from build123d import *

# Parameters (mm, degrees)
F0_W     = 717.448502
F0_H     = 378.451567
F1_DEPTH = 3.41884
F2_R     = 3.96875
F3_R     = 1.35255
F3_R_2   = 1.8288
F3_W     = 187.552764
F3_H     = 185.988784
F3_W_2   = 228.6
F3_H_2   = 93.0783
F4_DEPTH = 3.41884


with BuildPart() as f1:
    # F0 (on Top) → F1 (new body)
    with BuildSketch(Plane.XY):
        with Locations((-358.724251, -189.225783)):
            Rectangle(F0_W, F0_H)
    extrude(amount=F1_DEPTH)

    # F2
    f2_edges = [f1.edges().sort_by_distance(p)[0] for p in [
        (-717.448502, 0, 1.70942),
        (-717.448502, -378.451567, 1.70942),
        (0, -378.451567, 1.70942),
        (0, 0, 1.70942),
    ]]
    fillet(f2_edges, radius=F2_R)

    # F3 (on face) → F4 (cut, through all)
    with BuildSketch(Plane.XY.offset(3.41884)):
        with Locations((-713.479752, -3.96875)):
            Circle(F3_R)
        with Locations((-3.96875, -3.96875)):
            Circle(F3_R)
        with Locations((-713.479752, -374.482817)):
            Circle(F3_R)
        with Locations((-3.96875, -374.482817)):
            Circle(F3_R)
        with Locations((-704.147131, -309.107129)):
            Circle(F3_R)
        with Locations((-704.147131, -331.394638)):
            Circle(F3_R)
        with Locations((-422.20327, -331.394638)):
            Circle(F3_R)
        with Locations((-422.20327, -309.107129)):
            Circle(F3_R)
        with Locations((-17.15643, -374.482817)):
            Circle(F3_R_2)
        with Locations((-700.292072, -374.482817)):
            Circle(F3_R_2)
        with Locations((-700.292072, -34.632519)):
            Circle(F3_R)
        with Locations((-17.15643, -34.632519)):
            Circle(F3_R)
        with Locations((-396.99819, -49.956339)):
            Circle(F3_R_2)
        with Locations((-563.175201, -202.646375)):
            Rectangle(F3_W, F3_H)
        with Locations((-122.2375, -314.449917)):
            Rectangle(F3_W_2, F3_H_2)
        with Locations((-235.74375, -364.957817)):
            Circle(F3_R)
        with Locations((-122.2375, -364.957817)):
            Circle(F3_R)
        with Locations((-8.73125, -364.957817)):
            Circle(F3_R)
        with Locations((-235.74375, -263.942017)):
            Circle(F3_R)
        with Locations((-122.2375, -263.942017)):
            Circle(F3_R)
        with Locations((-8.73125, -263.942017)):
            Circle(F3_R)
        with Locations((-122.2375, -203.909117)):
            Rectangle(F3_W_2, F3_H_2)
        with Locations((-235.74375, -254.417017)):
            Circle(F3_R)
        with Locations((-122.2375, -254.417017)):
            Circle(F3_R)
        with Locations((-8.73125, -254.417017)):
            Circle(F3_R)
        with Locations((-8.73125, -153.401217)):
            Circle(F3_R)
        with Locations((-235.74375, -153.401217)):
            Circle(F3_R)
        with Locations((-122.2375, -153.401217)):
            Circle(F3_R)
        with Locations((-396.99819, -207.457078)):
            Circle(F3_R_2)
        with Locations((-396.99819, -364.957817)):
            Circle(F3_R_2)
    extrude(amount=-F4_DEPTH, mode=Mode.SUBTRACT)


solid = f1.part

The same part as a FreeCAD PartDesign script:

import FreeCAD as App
import Part
import Sketcher

V = App.Vector
Q = App.Units.Quantity


def edges_at(feature, points):
    """Names of the edges that pass closest to the given points."""
    edges = feature.Shape.Edges
    near = lambda p: min(range(len(edges)), key=lambda i: edges[i].distToShape(Part.Vertex(*p))[0])
    return sorted({f"Edge{near(p) + 1}" for p in points})

doc = App.newDocument("Part")
body = doc.addObject("PartDesign::Body", "Body")

sketch1 = doc.addObject("Sketcher::SketchObject", "Sketch")
body.addObject(sketch1)
sketch1.AttachmentSupport = (doc.XY_Plane, [""])
sketch1.MapMode = "FlatFace"
sketch1.addGeometry([
    Part.LineSegment(V(-717.448502, 0, 0), V(-717.448502, -378.451567, 0)),
    Part.LineSegment(V(-717.448502, -378.451567, 0), V(0, -378.451567, 0)),
    Part.LineSegment(V(0, -378.451567, 0), V(0, 0, 0)),
    Part.LineSegment(V(0, 0, 0), V(-717.448502, 0, 0)),
], False)
sketch1.addConstraint([
    Sketcher.Constraint("Coincident", 0, 2, 1, 1),
    Sketcher.Constraint("Coincident", 1, 2, 2, 1),
    Sketcher.Constraint("Coincident", 2, 2, 3, 1),
    Sketcher.Constraint("Coincident", 3, 2, 0, 1),
    Sketcher.Constraint("Vertical", 0),
    Sketcher.Constraint("Horizontal", 1),
    Sketcher.Constraint("Vertical", 2),
    Sketcher.Constraint("Horizontal", 3),
    Sketcher.Constraint("Coincident", 2, 2, -1, 1),
    Sketcher.Constraint("DistanceX", 1, 1, 1, 2, 717.448502),
    Sketcher.Constraint("DistanceY", 0, 2, 0, 1, 378.451567),
])
pad1 = doc.addObject("PartDesign::Pad", "Pad")
body.addObject(pad1)
pad1.Profile = sketch1
pad1.Length = Q("0.1346 in")
doc.recompute()

fillet = doc.addObject("PartDesign::Fillet", "Fillet")
body.addObject(fillet)
fillet.Base = (pad1, edges_at(pad1, [
    (-717.449, 0, 1.709),
    (-717.449, -378.452, 1.709),
    (0, -378.452, 1.709),
    (0, 0, 1.709),
]))
fillet.Radius = Q("0.15625 in")

sketch2 = doc.addObject("Sketcher::SketchObject", "Sketch001")
body.addObject(sketch2)
sketch2.AttachmentSupport = (doc.XY_Plane, [""])
sketch2.MapMode = "FlatFace"
sketch2.AttachmentOffset = App.Placement(V(0, 0, 0.1346 * 25.4), App.Rotation())
sketch2.addGeometry([
    Part.Circle(V(-713.479752, -3.96875, 0), V(0, 0, 1), 1.35255),
    Part.Circle(V(-3.96875, -3.96875, 0), V(0, 0, 1), 1.35255),
    Part.Circle(V(-713.479752, -374.482817, 0), V(0, 0, 1), 1.35255),
    Part.Circle(V(-3.96875, -374.482817, 0), V(0, 0, 1), 1.35255),
    Part.Circle(V(-704.147131, -309.107129, 0), V(0, 0, 1), 1.35255),
    Part.Circle(V(-704.147131, -331.394638, 0), V(0, 0, 1), 1.35255),
    Part.Circle(V(-422.20327, -331.394638, 0), V(0, 0, 1), 1.35255),
    Part.Circle(V(-422.20327, -309.107129, 0), V(0, 0, 1), 1.35255),
    Part.Circle(V(-17.15643, -374.482817, 0), V(0, 0, 1), 1.8288),
    Part.Circle(V(-700.292072, -374.482817, 0), V(0, 0, 1), 1.8288),
    Part.Circle(V(-700.292072, -34.632519, 0), V(0, 0, 1), 1.35255),
    Part.Circle(V(-17.15643, -34.632519, 0), V(0, 0, 1), 1.35255),
    Part.Circle(V(-396.99819, -49.956339, 0), V(0, 0, 1), 1.8288),
    Part.LineSegment(V(-656.951583, -109.651983, 0), V(-656.951583, -295.640767, 0)),
    Part.LineSegment(V(-656.951583, -295.640767, 0), V(-469.398819, -295.640767, 0)),
    Part.LineSegment(V(-469.398819, -295.640767, 0), V(-469.398819, -109.651983, 0)),
    Part.LineSegment(V(-469.398819, -109.651983, 0), V(-656.951583, -109.651983, 0)),
    Part.LineSegment(V(-236.5375, -267.910767, 0), V(-236.5375, -360.989067, 0)),
    Part.LineSegment(V(-236.5375, -360.989067, 0), V(-7.9375, -360.989067, 0)),
    Part.LineSegment(V(-7.9375, -360.989067, 0), V(-7.9375, -267.910767, 0)),
    Part.LineSegment(V(-7.9375, -267.910767, 0), V(-236.5375, -267.910767, 0)),
    Part.Circle(V(-235.74375, -364.957817, 0), V(0, 0, 1), 1.35255),
    Part.Circle(V(-122.2375, -364.957817, 0), V(0, 0, 1), 1.35255),
    Part.Circle(V(-8.73125, -364.957817, 0), V(0, 0, 1), 1.35255),
    Part.Circle(V(-235.74375, -263.942017, 0), V(0, 0, 1), 1.35255),
    Part.Circle(V(-122.2375, -263.942017, 0), V(0, 0, 1), 1.35255),
    Part.Circle(V(-8.73125, -263.942017, 0), V(0, 0, 1), 1.35255),
    Part.LineSegment(V(-236.5375, -157.369967, 0), V(-236.5375, -250.448267, 0)),
    Part.LineSegment(V(-236.5375, -250.448267, 0), V(-7.9375, -250.448267, 0)),
    Part.LineSegment(V(-7.9375, -250.448267, 0), V(-7.9375, -157.369967, 0)),
    Part.LineSegment(V(-7.9375, -157.369967, 0), V(-236.5375, -157.369967, 0)),
    Part.Circle(V(-235.74375, -254.417017, 0), V(0, 0, 1), 1.35255),
    Part.Circle(V(-122.2375, -254.417017, 0), V(0, 0, 1), 1.35255),
    Part.Circle(V(-8.73125, -254.417017, 0), V(0, 0, 1), 1.35255),
    Part.Circle(V(-8.73125, -153.401217, 0), V(0, 0, 1), 1.35255),
    Part.Circle(V(-235.74375, -153.401217, 0), V(0, 0, 1), 1.35255),
    Part.Circle(V(-122.2375, -153.401217, 0), V(0, 0, 1), 1.35255),
    Part.Circle(V(-396.99819, -207.457078, 0), V(0, 0, 1), 1.8288),
    Part.Circle(V(-396.99819, -364.957817, 0), V(0, 0, 1), 1.8288),
], False)
sketch2.addConstraint([
    Sketcher.Constraint("Coincident", 13, 2, 14, 1),
    Sketcher.Constraint("Coincident", 14, 2, 15, 1),
    Sketcher.Constraint("Coincident", 15, 2, 16, 1),
    Sketcher.Constraint("Coincident", 16, 2, 13, 1),
    Sketcher.Constraint("Coincident", 17, 2, 18, 1),
    Sketcher.Constraint("Coincident", 18, 2, 19, 1),
    Sketcher.Constraint("Coincident", 19, 2, 20, 1),
    Sketcher.Constraint("Coincident", 20, 2, 17, 1),
    Sketcher.Constraint("Coincident", 27, 2, 28, 1),
    Sketcher.Constraint("Coincident", 28, 2, 29, 1),
    Sketcher.Constraint("Coincident", 29, 2, 30, 1),
    Sketcher.Constraint("Coincident", 30, 2, 27, 1),
    Sketcher.Constraint("Vertical", 13),
    Sketcher.Constraint("Horizontal", 14),
    Sketcher.Constraint("Vertical", 15),
    Sketcher.Constraint("Horizontal", 16),
    Sketcher.Constraint("Vertical", 17),
    Sketcher.Constraint("Horizontal", 18),
    Sketcher.Constraint("Vertical", 19),
    Sketcher.Constraint("Horizontal", 20),
    Sketcher.Constraint("Vertical", 27),
    Sketcher.Constraint("Horizontal", 28),
    Sketcher.Constraint("Vertical", 29),
    Sketcher.Constraint("Horizontal", 30),
    Sketcher.Constraint("Equal", 0, 1),
    Sketcher.Constraint("Equal", 1, 2),
    Sketcher.Constraint("Equal", 2, 3),
    Sketcher.Constraint("Equal", 3, 4),
    Sketcher.Constraint("Equal", 4, 5),
    Sketcher.Constraint("Equal", 5, 6),
    Sketcher.Constraint("Equal", 6, 7),
    Sketcher.Constraint("Equal", 8, 9),
    Sketcher.Constraint("Equal", 7, 10),
    Sketcher.Constraint("Equal", 10, 11),
    Sketcher.Constraint("Equal", 9, 12),
    Sketcher.Constraint("Equal", 11, 21),
    Sketcher.Constraint("Equal", 21, 22),
    Sketcher.Constraint("Equal", 22, 23),
    Sketcher.Constraint("Equal", 23, 24),
    Sketcher.Constraint("Equal", 24, 25),
    Sketcher.Constraint("Equal", 25, 26),
    Sketcher.Constraint("Equal", 26, 31),
    Sketcher.Constraint("Equal", 31, 32),
    Sketcher.Constraint("Equal", 32, 33),
    Sketcher.Constraint("Equal", 33, 34),
    Sketcher.Constraint("Equal", 34, 35),
    Sketcher.Constraint("Equal", 35, 36),
    Sketcher.Constraint("Equal", 12, 37),
    Sketcher.Constraint("Equal", 37, 38),
    Sketcher.Constraint("Horizontal", 0, 3, 1, 3),
    Sketcher.Constraint("Horizontal", 2, 3, 3, 3),
    Sketcher.Constraint("Horizontal", 5, 3, 6, 3),
    Sketcher.Constraint("Horizontal", 4, 3, 7, 3),
    Sketcher.Constraint("Horizontal", 3, 3, 8, 3),
    Sketcher.Constraint("Horizontal", 8, 3, 9, 3),
    Sketcher.Constraint("Horizontal", 10, 3, 11, 3),
    Sketcher.Constraint("Horizontal", 21, 3, 22, 3),
    Sketcher.Constraint("Horizontal", 22, 3, 23, 3),
    Sketcher.Constraint("Horizontal", 24, 3, 25, 3),
    Sketcher.Constraint("Horizontal", 25, 3, 26, 3),
    Sketcher.Constraint("Horizontal", 31, 3, 32, 3),
    Sketcher.Constraint("Horizontal", 32, 3, 33, 3),
    Sketcher.Constraint("Horizontal", 34, 3, 35, 3),
    Sketcher.Constraint("Horizontal", 35, 3, 36, 3),
    Sketcher.Constraint("Horizontal", 23, 3, 38, 3),
    Sketcher.Constraint("Vertical", 0, 3, 2, 3),
    Sketcher.Constraint("Vertical", 1, 3, 3, 3),
    Sketcher.Constraint("Vertical", 4, 3, 5, 3),
    Sketcher.Constraint("Vertical", 6, 3, 7, 3),
    Sketcher.Constraint("Vertical", 9, 3, 10, 3),
    Sketcher.Constraint("Vertical", 8, 3, 11, 3),
    Sketcher.Constraint("Vertical", 21, 3, 24, 3),
    Sketcher.Constraint("Vertical", 22, 3, 25, 3),
    Sketcher.Constraint("Vertical", 23, 3, 26, 3),
    Sketcher.Constraint("Vertical", 24, 3, 31, 3),
    Sketcher.Constraint("Vertical", 25, 3, 32, 3),
    Sketcher.Constraint("Vertical", 26, 3, 33, 3),
    Sketcher.Constraint("Vertical", 33, 3, 34, 3),
    Sketcher.Constraint("Vertical", 31, 3, 35, 3),
    Sketcher.Constraint("Vertical", 32, 3, 36, 3),
    Sketcher.Constraint("Vertical", 12, 3, 37, 3),
    Sketcher.Constraint("Vertical", 37, 3, 38, 3),
    Sketcher.Constraint("Vertical", 20, 2, 27, 2),
    Sketcher.Constraint("Vertical", 19, 2, 28, 2),
    Sketcher.Constraint("Equal", 19, 27),
    Sketcher.Constraint("DistanceX", 18, 1, 18, 2, Q("9 in")),
    Sketcher.Constraint("Diameter", 8, Q("0.144 in")),
    Sketcher.Constraint("Diameter", 0, Q("0.1065 in")),
    Sketcher.Constraint("DistanceX", 17, 2, 22, 3, Q("4.5 in")),
    Sketcher.Constraint("DistanceY", 17, 2, 17, 1, Q("3.6645 in")),
    Sketcher.Constraint("DistanceY", 0, 3, -1, 1, Q("0.15625 in")),
    Sketcher.Constraint("DistanceX", 1, 3, -1, 1, Q("0.15625 in")),
    Sketcher.Constraint("DistanceX", 21, 3, -1, 1, Q("9.28125 in")),
    Sketcher.Constraint("DistanceX", 22, 3, -1, 1, Q("4.8125 in")),
    Sketcher.Constraint("DistanceX", 23, 3, -1, 1, Q("0.34375 in")),
    Sketcher.Constraint("DistanceY", 8, 3, 21, 3, Q("0.375 in")),
    Sketcher.Constraint("DistanceY", 21, 3, 24, 3, Q("3.977 in")),
    Sketcher.Constraint("DistanceY", 24, 3, 31, 3, Q("0.375 in")),
    Sketcher.Constraint("DistanceY", 33, 3, 34, 3, Q("3.977 in")),
    Sketcher.Constraint("DistanceY", 21, 3, 17, 2, Q("0.15625 in")),
    Sketcher.Constraint("DistanceY", 31, 3, 27, 2, Q("0.15625 in")),
    Sketcher.Constraint("DistanceX", 8, 3, 3, 3, Q("0.5192 in")),
    Sketcher.Constraint("DistanceX", 2, 3, 9, 3, Q("0.5192 in")),
    Sketcher.Constraint("DistanceY", 12, 3, 10, 3, Q("0.6033 in")),
    Sketcher.Constraint("DistanceX", 12, 3, 11, 3, Q("14.9544 in")),
    Sketcher.Constraint("DistanceX", 0, 3, 1, 3, 709.511002),
    Sketcher.Constraint("DistanceX", 5, 3, 8, 3, 686.990701),
    Sketcher.Constraint("DistanceX", 9, 3, 6, 3, 278.088802),
    Sketcher.Constraint("DistanceY", 9, 3, 10, 3, 339.850298),
    Sketcher.Constraint("DistanceY", 6, 3, 12, 3, 281.438299),
    Sketcher.Constraint("DistanceX", 14, 1, 14, 2, 187.552764),
    Sketcher.Constraint("DistanceY", 13, 2, 13, 1, 185.988784),
    Sketcher.Constraint("DistanceY", 4, 3, -1, 1, 309.107129),
    Sketcher.Constraint("DistanceY", 5, 3, -1, 1, 331.394638),
    Sketcher.Constraint("DistanceY", 37, 3, -1, 1, 207.457078),
    Sketcher.Constraint("DistanceX", 14, 2, -1, 1, 469.398819),
    Sketcher.Constraint("DistanceY", 5, 3, 13, 2, 35.753871),
])
pocket1 = doc.addObject("PartDesign::Pocket", "Pocket")
body.addObject(pocket1)
pocket1.Profile = sketch2
pocket1.Type = "ThroughAll"

doc.recompute()
